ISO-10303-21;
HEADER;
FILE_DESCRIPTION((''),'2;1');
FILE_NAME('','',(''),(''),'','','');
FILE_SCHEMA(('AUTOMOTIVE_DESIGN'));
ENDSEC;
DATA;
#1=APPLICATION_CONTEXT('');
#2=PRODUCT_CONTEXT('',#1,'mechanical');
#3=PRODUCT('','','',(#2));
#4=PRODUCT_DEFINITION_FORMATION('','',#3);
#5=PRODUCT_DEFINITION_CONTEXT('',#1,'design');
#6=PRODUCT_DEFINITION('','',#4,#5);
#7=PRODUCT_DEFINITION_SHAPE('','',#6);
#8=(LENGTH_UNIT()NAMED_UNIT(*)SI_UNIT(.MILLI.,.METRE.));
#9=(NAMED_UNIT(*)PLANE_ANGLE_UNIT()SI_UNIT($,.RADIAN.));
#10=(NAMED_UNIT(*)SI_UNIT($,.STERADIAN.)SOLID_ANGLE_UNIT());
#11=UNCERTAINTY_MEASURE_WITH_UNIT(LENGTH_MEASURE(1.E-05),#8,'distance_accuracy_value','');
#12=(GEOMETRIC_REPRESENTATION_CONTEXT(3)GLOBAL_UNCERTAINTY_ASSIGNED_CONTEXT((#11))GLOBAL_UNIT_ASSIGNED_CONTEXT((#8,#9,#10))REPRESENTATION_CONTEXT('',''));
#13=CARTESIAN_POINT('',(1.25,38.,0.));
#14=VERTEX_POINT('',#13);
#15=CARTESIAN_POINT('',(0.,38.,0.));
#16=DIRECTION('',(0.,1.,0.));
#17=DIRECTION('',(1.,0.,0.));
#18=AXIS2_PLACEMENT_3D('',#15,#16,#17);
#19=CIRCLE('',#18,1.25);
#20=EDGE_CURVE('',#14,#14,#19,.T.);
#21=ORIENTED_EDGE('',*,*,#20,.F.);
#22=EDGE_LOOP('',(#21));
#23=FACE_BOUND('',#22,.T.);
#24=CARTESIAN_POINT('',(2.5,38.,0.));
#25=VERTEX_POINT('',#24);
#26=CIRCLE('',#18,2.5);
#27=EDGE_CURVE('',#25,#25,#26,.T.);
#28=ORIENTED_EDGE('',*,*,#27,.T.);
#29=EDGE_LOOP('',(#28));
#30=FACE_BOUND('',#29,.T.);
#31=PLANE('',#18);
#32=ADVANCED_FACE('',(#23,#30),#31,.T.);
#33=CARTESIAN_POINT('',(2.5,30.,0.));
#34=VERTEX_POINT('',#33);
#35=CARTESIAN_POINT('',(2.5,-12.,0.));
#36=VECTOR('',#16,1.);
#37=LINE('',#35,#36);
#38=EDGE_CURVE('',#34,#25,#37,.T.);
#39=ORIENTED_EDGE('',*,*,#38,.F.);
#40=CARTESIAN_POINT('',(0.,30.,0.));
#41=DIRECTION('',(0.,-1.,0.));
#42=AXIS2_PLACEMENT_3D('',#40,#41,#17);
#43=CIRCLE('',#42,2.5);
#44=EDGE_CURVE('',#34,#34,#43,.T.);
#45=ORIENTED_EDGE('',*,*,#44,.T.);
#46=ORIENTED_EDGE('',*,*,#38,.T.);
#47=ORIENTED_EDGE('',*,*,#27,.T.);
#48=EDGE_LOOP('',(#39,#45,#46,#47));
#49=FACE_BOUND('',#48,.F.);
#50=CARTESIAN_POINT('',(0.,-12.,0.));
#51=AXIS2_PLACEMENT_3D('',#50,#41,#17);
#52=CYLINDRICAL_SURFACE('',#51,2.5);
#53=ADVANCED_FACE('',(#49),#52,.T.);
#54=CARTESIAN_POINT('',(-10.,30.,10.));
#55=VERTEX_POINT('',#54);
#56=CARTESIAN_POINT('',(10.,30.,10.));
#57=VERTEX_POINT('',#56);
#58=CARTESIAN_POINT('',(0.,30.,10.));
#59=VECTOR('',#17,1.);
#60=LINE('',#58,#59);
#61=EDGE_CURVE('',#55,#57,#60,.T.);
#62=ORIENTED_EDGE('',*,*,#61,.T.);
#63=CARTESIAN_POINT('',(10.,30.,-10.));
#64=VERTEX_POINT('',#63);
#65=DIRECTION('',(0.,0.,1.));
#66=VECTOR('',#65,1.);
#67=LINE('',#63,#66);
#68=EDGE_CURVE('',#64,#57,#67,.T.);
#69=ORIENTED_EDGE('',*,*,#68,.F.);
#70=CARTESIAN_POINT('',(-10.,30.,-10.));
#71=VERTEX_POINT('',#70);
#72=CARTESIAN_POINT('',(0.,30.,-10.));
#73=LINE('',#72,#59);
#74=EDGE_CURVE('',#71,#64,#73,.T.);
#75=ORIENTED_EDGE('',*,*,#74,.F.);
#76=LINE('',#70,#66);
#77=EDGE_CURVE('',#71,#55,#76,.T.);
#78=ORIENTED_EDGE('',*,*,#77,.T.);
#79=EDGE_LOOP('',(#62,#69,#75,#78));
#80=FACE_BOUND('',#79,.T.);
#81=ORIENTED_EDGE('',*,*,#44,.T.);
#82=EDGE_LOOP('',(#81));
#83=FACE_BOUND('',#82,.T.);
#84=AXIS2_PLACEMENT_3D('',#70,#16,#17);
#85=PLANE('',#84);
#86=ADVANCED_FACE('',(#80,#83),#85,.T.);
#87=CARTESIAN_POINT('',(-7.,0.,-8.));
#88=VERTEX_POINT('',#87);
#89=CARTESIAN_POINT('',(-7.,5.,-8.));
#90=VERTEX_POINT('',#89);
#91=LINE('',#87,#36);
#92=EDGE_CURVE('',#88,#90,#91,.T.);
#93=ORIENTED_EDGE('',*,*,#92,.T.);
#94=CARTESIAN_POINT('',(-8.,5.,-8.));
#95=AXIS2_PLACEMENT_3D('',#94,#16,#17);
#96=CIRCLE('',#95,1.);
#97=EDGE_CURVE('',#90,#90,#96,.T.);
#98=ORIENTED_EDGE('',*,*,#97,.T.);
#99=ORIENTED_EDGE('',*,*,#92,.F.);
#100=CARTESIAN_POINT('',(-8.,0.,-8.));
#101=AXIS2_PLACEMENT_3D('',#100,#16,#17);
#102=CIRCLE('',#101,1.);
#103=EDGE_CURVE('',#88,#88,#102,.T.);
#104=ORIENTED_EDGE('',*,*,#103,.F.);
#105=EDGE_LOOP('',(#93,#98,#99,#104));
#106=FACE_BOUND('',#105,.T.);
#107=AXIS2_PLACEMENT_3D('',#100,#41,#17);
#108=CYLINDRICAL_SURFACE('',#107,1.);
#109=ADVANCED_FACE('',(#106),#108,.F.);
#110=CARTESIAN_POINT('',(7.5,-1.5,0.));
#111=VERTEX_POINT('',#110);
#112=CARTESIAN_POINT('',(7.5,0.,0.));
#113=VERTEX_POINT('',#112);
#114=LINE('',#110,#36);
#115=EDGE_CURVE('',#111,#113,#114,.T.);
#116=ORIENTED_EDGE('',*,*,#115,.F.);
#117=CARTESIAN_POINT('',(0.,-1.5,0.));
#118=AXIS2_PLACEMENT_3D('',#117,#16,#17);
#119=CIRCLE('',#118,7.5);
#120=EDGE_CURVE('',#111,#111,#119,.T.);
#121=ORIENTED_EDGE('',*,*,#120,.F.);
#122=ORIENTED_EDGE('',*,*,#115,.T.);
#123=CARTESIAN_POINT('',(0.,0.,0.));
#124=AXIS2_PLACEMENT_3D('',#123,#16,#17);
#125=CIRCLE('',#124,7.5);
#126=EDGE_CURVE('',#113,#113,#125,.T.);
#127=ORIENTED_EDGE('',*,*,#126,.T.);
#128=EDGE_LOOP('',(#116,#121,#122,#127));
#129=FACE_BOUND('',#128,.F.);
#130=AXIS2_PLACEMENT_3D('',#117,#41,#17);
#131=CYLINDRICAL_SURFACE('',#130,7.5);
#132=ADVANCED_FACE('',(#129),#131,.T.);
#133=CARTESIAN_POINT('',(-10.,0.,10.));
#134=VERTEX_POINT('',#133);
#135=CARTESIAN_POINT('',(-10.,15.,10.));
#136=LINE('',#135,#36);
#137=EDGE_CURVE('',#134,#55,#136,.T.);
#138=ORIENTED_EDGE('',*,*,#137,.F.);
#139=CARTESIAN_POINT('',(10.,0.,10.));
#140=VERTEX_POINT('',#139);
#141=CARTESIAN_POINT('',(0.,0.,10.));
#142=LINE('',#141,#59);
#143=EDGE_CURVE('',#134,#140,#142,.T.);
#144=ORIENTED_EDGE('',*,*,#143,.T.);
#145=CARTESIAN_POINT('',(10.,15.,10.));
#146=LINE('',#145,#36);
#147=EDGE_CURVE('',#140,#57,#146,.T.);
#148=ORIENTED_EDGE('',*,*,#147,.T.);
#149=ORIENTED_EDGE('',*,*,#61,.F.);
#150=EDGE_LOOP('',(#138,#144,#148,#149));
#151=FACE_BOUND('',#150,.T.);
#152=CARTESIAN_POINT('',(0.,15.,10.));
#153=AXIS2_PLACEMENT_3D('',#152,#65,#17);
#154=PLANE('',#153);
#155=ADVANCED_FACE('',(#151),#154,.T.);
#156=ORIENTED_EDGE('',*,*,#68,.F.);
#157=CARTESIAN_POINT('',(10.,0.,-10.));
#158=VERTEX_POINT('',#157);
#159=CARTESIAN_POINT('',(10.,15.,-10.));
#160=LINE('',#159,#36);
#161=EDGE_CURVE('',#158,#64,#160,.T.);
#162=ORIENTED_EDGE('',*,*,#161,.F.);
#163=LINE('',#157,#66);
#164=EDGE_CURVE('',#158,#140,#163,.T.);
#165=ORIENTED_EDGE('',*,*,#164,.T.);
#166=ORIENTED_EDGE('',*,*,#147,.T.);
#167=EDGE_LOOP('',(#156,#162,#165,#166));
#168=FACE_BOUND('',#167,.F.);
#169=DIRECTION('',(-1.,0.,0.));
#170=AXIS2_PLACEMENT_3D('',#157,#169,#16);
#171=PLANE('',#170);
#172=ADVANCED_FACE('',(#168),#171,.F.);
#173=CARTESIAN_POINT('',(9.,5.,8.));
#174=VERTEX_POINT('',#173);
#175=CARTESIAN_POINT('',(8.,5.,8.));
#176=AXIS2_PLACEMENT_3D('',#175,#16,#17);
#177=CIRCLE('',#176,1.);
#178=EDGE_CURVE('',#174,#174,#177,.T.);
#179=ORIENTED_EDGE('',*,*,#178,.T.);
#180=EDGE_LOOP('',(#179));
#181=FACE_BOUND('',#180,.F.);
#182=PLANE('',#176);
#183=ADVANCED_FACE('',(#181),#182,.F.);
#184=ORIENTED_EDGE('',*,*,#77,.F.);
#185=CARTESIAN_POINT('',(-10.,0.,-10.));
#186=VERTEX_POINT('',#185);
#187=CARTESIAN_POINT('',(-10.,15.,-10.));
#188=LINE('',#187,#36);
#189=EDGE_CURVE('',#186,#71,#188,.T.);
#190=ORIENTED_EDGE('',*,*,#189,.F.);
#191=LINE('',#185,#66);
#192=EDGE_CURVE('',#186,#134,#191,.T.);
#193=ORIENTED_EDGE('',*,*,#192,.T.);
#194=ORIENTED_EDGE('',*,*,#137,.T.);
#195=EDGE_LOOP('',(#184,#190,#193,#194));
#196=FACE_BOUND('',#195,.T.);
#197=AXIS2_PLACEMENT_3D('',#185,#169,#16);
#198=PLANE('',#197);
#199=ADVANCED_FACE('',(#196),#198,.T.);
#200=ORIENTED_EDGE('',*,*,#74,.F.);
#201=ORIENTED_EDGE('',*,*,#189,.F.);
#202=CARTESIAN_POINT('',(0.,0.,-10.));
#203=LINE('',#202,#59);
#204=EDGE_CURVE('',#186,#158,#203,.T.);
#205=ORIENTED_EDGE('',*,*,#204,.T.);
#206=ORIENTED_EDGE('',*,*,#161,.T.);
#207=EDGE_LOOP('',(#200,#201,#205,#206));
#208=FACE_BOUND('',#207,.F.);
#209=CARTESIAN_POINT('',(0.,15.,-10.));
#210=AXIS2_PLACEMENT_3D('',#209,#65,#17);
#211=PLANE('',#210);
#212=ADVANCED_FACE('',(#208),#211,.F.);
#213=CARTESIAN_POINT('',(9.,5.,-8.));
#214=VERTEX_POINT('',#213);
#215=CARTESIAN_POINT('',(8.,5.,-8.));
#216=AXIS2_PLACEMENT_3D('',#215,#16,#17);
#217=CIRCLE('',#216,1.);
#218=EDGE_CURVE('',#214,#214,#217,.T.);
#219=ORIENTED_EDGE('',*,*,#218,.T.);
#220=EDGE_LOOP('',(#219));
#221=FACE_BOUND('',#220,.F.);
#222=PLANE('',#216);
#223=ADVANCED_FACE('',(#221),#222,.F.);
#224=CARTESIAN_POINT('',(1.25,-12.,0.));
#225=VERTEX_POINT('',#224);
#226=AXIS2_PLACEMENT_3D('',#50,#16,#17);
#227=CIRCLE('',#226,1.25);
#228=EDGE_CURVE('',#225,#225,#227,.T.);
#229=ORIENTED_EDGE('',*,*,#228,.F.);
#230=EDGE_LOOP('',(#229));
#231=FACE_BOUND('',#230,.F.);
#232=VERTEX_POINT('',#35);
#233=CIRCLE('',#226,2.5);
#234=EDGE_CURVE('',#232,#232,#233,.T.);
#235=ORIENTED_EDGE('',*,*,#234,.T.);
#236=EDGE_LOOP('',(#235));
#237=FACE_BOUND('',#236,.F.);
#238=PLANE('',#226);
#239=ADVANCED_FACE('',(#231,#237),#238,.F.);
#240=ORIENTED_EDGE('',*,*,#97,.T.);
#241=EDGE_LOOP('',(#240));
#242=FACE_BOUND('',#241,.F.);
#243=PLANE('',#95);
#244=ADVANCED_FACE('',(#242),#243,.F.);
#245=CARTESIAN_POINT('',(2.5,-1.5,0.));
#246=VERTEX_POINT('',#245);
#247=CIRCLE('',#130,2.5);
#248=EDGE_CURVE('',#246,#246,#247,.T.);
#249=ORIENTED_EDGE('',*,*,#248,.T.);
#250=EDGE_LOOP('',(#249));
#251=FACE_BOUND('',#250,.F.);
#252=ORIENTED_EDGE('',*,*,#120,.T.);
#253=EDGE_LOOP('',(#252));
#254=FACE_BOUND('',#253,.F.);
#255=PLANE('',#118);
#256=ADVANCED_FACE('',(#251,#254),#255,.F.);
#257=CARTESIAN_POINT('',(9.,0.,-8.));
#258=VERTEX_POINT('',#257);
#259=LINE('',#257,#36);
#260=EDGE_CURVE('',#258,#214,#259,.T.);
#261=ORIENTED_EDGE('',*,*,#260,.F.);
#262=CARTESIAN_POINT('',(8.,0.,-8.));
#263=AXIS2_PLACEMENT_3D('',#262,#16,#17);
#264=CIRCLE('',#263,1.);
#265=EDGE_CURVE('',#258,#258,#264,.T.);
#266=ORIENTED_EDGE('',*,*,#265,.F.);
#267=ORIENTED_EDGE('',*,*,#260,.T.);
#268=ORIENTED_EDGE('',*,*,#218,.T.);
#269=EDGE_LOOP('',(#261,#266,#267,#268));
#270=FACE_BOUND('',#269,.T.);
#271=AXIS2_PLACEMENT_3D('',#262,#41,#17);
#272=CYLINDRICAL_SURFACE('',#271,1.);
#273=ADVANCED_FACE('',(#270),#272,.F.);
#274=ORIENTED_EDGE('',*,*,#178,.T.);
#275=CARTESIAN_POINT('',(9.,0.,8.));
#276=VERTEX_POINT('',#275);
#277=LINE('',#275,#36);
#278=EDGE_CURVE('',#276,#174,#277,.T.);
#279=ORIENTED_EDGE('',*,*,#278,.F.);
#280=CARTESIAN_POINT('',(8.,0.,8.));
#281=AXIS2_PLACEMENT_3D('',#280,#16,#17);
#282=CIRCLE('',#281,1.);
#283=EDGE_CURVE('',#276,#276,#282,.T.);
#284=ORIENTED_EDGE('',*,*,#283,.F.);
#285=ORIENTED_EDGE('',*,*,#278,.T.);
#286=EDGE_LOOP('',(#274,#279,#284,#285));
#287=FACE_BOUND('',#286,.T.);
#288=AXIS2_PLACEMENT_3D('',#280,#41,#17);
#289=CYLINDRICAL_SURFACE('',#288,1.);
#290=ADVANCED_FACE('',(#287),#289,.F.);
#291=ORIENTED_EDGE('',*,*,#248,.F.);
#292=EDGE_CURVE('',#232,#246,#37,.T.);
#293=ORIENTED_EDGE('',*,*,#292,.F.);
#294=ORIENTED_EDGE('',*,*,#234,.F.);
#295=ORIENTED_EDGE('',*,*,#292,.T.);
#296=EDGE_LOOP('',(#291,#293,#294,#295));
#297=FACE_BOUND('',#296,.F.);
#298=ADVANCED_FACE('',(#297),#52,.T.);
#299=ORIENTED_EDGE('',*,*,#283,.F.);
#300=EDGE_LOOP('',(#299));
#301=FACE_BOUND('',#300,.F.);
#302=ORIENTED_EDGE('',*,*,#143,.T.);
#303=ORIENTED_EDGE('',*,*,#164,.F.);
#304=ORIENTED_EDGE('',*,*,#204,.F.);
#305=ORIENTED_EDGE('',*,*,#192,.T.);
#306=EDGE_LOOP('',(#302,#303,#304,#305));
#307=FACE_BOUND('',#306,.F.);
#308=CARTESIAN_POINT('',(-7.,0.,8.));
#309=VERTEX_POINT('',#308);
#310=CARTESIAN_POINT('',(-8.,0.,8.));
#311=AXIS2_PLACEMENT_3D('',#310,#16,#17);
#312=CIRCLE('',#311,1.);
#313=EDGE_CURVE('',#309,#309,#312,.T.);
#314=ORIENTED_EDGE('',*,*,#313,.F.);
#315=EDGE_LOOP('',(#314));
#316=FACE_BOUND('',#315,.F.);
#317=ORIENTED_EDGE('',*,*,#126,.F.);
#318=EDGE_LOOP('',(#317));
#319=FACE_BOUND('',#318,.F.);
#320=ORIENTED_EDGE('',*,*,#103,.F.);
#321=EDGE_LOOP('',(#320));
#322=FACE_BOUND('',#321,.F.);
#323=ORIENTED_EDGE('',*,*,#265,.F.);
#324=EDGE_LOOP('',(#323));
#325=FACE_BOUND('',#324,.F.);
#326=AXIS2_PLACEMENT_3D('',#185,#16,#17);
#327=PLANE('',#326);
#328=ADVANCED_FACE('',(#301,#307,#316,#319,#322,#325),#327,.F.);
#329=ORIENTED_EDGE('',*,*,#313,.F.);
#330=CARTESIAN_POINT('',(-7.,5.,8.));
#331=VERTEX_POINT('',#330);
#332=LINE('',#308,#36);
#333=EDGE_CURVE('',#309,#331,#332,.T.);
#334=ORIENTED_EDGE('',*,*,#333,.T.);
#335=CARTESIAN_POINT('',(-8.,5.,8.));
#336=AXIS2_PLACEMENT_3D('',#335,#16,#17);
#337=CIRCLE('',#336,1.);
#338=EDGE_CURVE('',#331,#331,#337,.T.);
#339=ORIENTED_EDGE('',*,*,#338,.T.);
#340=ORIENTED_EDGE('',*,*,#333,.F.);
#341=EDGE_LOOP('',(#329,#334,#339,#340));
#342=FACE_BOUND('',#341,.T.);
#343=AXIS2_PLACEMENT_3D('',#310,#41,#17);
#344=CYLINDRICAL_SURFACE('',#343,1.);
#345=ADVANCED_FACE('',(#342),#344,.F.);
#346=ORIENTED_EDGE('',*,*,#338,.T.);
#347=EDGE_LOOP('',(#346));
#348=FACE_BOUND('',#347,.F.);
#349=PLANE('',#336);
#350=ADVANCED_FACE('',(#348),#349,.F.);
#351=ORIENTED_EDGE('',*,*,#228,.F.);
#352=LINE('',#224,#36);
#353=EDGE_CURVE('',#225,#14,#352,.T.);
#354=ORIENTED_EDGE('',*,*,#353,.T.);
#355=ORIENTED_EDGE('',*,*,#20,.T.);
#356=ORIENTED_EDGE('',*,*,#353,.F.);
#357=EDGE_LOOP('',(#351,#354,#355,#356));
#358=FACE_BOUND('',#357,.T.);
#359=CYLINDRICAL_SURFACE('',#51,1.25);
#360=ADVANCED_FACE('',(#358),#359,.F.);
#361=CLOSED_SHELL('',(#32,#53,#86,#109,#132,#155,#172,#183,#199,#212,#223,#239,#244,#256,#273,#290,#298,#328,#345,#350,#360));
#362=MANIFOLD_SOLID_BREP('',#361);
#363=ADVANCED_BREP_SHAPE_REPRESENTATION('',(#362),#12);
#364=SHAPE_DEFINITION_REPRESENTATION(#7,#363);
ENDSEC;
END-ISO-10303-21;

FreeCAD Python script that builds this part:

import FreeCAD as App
import Part
import Sketcher

doc = App.newDocument("Part")
body = doc.addObject("PartDesign::Body", "Body")

sketch1 = body.newObject("Sketcher::SketchObject", "Sketch")
sketch1.AttachmentSupport = (doc.getObject("XZ_Plane"), [""])
sketch1.MapMode = "FlatFace"
sketch1.addGeometry(Part.Circle(App.Vector(-8, 8, 0), App.Vector(0, 0, 1), 1), False)
sketch1.addConstraint([
    Sketcher.Constraint("Diameter", 0, 2.0),
    Sketcher.Constraint("DistanceX", 0, 3, -1, 1, 8.0),
    Sketcher.Constraint("DistanceY", -1, 1, 0, 3, 8.0),
])
pad1 = body.newObject("PartDesign::Pad", "Pad")
pad1.Profile = sketch1
pad1.Length = 5
pad1.Reversed = True
body2 = doc.addObject("PartDesign::Body", "Body001")

sketch2 = body2.newObject("Sketcher::SketchObject", "Sketch001")
sketch2.AttachmentSupport = (doc.getObject("XZ_Plane001"), [""])
sketch2.MapMode = "FlatFace"
sketch2.addGeometry(Part.Circle(App.Vector(8, -8, 0), App.Vector(0, 0, 1), 1), False)
sketch2.addConstraint([
    Sketcher.Constraint("Diameter", 0, 2.0),
    Sketcher.Constraint("DistanceX", -1, 1, 0, 3, 8.0),
    Sketcher.Constraint("DistanceY", 0, 3, -1, 1, 8.0),
])
pad2 = body2.newObject("PartDesign::Pad", "Pad001")
pad2.Profile = sketch2
pad2.Length = 5
pad2.Reversed = True
body3 = doc.addObject("PartDesign::Body", "Body002")

sketch3 = body3.newObject("Sketcher::SketchObject", "Sketch002")
sketch3.AttachmentSupport = (doc.getObject("XZ_Plane002"), [""])
sketch3.MapMode = "FlatFace"
sketch3.addGeometry(Part.Circle(App.Vector(8, 8, 0), App.Vector(0, 0, 1), 1), False)
sketch3.addConstraint([
    Sketcher.Constraint("Diameter", 0, 2.0),
    Sketcher.Constraint("DistanceX", -1, 1, 0, 3, 8.0),
    Sketcher.Constraint("DistanceY", -1, 1, 0, 3, 8.0),
])
pad3 = body3.newObject("PartDesign::Pad", "Pad002")
pad3.Profile = sketch3
pad3.Length = 5
pad3.Reversed = True
body4 = doc.addObject("PartDesign::Body", "Body003")

sketch4 = body4.newObject("Sketcher::SketchObject", "Sketch003")
sketch4.AttachmentSupport = (doc.getObject("XZ_Plane003"), [""])
sketch4.MapMode = "FlatFace"
sketch4.AttachmentOffset = App.Placement(App.Vector(0, 0, 12), App.Rotation())
sketch4.addGeometry(Part.Circle(App.Vector(0, 0, 0), App.Vector(0, 0, 1), 1.2), False)
sketch4.addConstraint([
    Sketcher.Constraint("Coincident", 0, 3, -1, 1),
    Sketcher.Constraint("Diameter", 0, 2.5),
])
pad4 = body4.newObject("PartDesign::Pad", "Pad003")
pad4.Profile = sketch4
pad4.Length = 50
pad4.Reversed = True
body5 = doc.addObject("PartDesign::Body", "Body004")
body5.AllowCompound = True

sketch5 = body5.newObject("Sketcher::SketchObject", "Sketch004")
sketch5.AttachmentSupport = (doc.getObject("XZ_Plane004"), [""])
sketch5.MapMode = "FlatFace"
sketch5.addGeometry(Part.Circle(App.Vector(-8, -8, 0), App.Vector(0, 0, 1), 1), False)
sketch5.addConstraint([
    Sketcher.Constraint("Diameter", 0, 2.0),
    Sketcher.Constraint("DistanceX", 0, 3, -1, 1, 8.0),
    Sketcher.Constraint("DistanceY", 0, 3, -1, 1, 8.0),
])
pad5 = body5.newObject("PartDesign::Pad", "Pad004")
pad5.Profile = sketch5
pad5.Length = 5
pad5.Reversed = True
doc.recompute()

boolean = body5.newObject("PartDesign::Boolean", "Boolean")
boolean.Type = "Fuse"
boolean.addObjects([body])
doc.recompute()

boolean2 = body5.newObject("PartDesign::Boolean", "Boolean001")
boolean2.Type = "Fuse"
boolean2.addObjects([body2])
doc.recompute()

boolean3 = body5.newObject("PartDesign::Boolean", "Boolean002")
boolean3.Type = "Fuse"
boolean3.addObjects([body3])
doc.recompute()

boolean4 = body5.newObject("PartDesign::Boolean", "Boolean003")
boolean4.Type = "Fuse"
boolean4.addObjects([body4])
body6 = doc.addObject("PartDesign::Body", "Body005")

sketch6 = body6.newObject("Sketcher::SketchObject", "Sketch005")
sketch6.AttachmentSupport = (doc.getObject("XZ_Plane005"), [""])
sketch6.MapMode = "FlatFace"
sketch6.AttachmentOffset = App.Placement(App.Vector(0, 0, 1.5), App.Rotation())
sketch6.addGeometry(Part.Circle(App.Vector(0, 0, 0), App.Vector(0, 0, 1), 8), False)
sketch6.addConstraint([
    Sketcher.Constraint("Coincident", 0, 3, -1, 1),
    Sketcher.Constraint("Diameter", 0, 15.0),
])
pad6 = body6.newObject("PartDesign::Pad", "Pad005")
pad6.Profile = sketch6
pad6.Length = 1.5
pad6.Reversed = True
body7 = doc.addObject("PartDesign::Body", "Body006")

sketch7 = body7.newObject("Sketcher::SketchObject", "Sketch006")
sketch7.AttachmentSupport = (doc.getObject("XZ_Plane006"), [""])
sketch7.MapMode = "FlatFace"
sketch7.AttachmentOffset = App.Placement(App.Vector(0, 0, 12), App.Rotation())
sketch7.addGeometry(Part.Circle(App.Vector(0, 0, 0), App.Vector(0, 0, 1), 2.5), False)
sketch7.addConstraint([
    Sketcher.Constraint("Coincident", 0, 3, -1, 1),
    Sketcher.Constraint("Diameter", 0, 5.0),
])
pad7 = body7.newObject("PartDesign::Pad", "Pad006")
pad7.Profile = sketch7
pad7.Length = 50
pad7.Reversed = True
body8 = doc.addObject("PartDesign::Body", "Body007")

sketch8 = body8.newObject("Sketcher::SketchObject", "Sketch007")
sketch8.AttachmentSupport = (doc.getObject("XY_Plane007"), [""])
sketch8.MapMode = "FlatFace"
sketch8.AttachmentOffset = App.Placement(App.Vector(0, 0, -10), App.Rotation())
sketch8.addGeometry([
    Part.LineSegment(App.Vector(-10, 30, 0), App.Vector(-10, 0, 0)),
    Part.LineSegment(App.Vector(-10, 0, 0), App.Vector(10, 0, 0)),
    Part.LineSegment(App.Vector(10, 0, 0), App.Vector(10, 30, 0)),
    Part.LineSegment(App.Vector(10, 30, 0), App.Vector(-10, 30, 0)),
], False)
sketch8.addConstraint([
    Sketcher.Constraint("Coincident", 0, 2, 1, 1),
    Sketcher.Constraint("Coincident", 1, 2, 2, 1),
    Sketcher.Constraint("Coincident", 2, 2, 3, 1),
    Sketcher.Constraint("Coincident", 3, 2, 0, 1),
    Sketcher.Constraint("Vertical", 0),
    Sketcher.Constraint("Horizontal", 1),
    Sketcher.Constraint("Vertical", 2),
    Sketcher.Constraint("Horizontal", 3),
    Sketcher.Constraint("Symmetric", 0, 2, 1, 2, -1, 1),
    Sketcher.Constraint("DistanceX", 1, 1, 1, 2, 20.0),
    Sketcher.Constraint("DistanceY", 0, 2, 0, 1, 30.0),
])
pad8 = body8.newObject("PartDesign::Pad", "Pad007")
pad8.Profile = sketch8
pad8.Length = 20
doc.recompute()

boolean5 = body8.newObject("PartDesign::Boolean", "Boolean004")
boolean5.Type = "Fuse"
boolean5.addObjects([body6])
doc.recompute()

boolean6 = body8.newObject("PartDesign::Boolean", "Boolean005")
boolean6.Type = "Fuse"
boolean6.addObjects([body7])
doc.recompute()

boolean7 = body8.newObject("PartDesign::Boolean", "Boolean006")
boolean7.Type = "Cut"
boolean7.addObjects([body5])

doc.recompute()
